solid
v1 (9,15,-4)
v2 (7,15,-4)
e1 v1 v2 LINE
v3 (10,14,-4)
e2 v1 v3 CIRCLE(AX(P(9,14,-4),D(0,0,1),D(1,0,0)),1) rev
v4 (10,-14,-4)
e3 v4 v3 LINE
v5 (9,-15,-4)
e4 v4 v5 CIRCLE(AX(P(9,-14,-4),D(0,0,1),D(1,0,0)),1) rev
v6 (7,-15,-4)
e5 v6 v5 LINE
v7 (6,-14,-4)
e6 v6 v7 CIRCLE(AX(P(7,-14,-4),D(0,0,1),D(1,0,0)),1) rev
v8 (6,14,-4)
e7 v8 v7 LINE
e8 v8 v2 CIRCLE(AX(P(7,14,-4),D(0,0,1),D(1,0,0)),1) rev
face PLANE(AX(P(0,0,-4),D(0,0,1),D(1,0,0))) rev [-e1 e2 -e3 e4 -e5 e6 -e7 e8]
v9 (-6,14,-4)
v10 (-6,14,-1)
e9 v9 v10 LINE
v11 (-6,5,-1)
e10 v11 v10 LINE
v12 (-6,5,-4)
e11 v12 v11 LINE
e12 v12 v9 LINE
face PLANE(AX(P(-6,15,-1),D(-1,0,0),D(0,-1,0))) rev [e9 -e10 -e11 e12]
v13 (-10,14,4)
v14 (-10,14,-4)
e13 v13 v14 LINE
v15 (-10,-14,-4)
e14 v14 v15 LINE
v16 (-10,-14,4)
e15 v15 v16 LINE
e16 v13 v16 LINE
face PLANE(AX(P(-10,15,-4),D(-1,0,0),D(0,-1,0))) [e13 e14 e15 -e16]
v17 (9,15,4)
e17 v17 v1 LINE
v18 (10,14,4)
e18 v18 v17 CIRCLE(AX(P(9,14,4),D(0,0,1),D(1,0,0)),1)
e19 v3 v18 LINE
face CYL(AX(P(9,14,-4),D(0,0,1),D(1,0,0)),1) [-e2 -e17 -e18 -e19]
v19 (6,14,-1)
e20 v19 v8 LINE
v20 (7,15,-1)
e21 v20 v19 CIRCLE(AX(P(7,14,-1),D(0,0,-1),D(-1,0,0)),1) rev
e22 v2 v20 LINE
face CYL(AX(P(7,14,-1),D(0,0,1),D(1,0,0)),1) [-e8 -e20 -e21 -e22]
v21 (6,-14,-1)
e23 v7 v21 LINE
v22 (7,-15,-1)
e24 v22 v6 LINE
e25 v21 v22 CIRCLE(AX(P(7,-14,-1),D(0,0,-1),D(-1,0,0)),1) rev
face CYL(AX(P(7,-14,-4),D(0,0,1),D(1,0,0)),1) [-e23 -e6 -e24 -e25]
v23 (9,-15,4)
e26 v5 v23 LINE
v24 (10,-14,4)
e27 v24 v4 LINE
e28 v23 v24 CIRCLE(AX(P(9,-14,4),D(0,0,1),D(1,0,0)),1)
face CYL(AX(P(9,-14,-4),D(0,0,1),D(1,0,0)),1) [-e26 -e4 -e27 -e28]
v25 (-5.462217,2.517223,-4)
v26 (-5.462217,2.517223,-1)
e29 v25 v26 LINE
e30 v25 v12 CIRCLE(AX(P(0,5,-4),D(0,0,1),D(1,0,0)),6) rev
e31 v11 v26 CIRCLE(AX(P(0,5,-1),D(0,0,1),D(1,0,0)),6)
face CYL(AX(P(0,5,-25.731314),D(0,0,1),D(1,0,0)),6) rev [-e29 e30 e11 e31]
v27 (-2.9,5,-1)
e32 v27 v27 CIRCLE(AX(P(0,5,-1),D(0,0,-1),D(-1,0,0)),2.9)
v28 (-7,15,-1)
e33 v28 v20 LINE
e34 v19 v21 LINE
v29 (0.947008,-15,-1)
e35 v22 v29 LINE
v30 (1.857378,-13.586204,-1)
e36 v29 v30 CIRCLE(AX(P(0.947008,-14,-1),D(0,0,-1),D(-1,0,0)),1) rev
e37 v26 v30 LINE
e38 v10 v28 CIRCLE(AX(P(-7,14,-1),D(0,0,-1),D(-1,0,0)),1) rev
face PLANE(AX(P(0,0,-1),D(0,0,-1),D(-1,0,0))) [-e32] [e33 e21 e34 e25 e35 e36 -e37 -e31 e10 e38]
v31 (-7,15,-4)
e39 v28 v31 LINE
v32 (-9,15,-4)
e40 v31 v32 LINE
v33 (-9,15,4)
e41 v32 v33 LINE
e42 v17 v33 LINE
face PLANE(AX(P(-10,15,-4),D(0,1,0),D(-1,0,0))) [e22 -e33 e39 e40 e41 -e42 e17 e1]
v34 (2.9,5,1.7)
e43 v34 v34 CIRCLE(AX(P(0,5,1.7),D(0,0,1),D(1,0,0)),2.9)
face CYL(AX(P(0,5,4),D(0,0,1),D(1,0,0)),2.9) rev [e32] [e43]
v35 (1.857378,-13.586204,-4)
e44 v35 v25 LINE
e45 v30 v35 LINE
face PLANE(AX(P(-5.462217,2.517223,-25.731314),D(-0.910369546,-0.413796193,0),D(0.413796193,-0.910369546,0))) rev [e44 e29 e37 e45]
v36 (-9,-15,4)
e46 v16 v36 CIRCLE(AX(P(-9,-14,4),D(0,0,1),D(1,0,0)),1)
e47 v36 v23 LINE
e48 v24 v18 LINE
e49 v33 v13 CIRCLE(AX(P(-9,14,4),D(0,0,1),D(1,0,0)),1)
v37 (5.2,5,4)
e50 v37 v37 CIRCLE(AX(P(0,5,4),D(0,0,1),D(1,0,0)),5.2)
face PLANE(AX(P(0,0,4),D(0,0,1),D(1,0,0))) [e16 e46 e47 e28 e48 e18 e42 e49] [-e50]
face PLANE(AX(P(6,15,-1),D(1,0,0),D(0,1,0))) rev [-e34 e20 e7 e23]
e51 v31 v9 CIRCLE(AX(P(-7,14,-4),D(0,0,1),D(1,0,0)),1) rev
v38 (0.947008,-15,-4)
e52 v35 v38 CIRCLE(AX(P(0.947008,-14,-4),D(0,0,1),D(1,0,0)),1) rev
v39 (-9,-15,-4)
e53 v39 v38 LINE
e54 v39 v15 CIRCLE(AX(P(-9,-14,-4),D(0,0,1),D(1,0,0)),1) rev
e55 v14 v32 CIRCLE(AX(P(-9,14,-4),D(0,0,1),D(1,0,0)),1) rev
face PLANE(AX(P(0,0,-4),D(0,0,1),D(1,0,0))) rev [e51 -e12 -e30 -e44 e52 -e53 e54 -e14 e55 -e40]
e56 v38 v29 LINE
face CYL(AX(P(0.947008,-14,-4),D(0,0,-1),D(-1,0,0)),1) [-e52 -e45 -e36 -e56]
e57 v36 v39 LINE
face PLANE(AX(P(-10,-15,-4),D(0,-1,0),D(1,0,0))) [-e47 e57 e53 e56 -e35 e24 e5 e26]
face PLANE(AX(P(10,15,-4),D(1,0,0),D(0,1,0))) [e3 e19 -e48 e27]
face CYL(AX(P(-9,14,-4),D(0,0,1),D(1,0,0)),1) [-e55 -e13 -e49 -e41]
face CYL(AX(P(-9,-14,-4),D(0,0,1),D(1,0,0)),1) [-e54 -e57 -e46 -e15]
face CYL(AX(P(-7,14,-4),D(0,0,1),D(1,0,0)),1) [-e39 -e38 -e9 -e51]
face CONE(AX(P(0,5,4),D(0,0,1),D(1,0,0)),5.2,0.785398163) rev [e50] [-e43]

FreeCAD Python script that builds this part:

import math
import FreeCAD as App
import Part
import Sketcher
from FreeCAD import Vector


def edges_at(feature, points):
    """Names of the edges that pass closest to the given points."""
    edges = feature.Shape.Edges
    near = lambda p: min(range(len(edges)), key=lambda i: edges[i].distToShape(Part.Vertex(*p))[0])
    return sorted({f"Edge{near(p) + 1}" for p in points})

doc = App.newDocument("Part")
body = doc.addObject("PartDesign::Body", "Body")

# Sketch on XY plane
sketch1 = body.newObject("Sketcher::SketchObject", "Sketch")
sketch1.AttachmentSupport = (doc.getObject("XY_Plane"), [""])
sketch1.MapMode = "FlatFace"
sketch1.addGeometry(Part.LineSegment(Vector(-10, 15, 0), Vector(-10, -15, 0)), False)
sketch1.addGeometry(Part.LineSegment(Vector(-10, -15, 0), Vector(10, -15, 0)), False)
sketch1.addGeometry(Part.LineSegment(Vector(10, -15, 0), Vector(10, 15, 0)), False)
sketch1.addGeometry(Part.LineSegment(Vector(10, 15, 0), Vector(-10, 15, 0)), False)
sketch1.addConstraint(Sketcher.Constraint("Coincident", 0, 2, 1, 1))
sketch1.addConstraint(Sketcher.Constraint("Coincident", 1, 2, 2, 1))
sketch1.addConstraint(Sketcher.Constraint("Coincident", 2, 2, 3, 1))
sketch1.addConstraint(Sketcher.Constraint("Coincident", 3, 2, 0, 1))
sketch1.addConstraint(Sketcher.Constraint("Vertical", 0))
sketch1.addConstraint(Sketcher.Constraint("Horizontal", 1))
sketch1.addConstraint(Sketcher.Constraint("Vertical", 2))
sketch1.addConstraint(Sketcher.Constraint("Horizontal", 3))
sketch1.addConstraint(Sketcher.Constraint("Symmetric", 0, 2, 2, 2, -1, 1))
sketch1.addConstraint(Sketcher.Constraint("DistanceX", 1, 1, 1, 2, 20.0))
sketch1.addConstraint(Sketcher.Constraint("DistanceY", 0, 2, 0, 1, 30.0))
pad1 = body.newObject("PartDesign::Pad", "Pad")
pad1.Profile = sketch1
pad1.Length = 8
pad1.Midplane = True

# Sketch on XY plane
sketch2 = body.newObject("Sketcher::SketchObject", "Sketch001")
sketch2.AttachmentSupport = (doc.getObject("XY_Plane"), [""])
sketch2.MapMode = "FlatFace"
sketch2.AttachmentOffset = App.Placement(Vector(0, 0, -4), App.Rotation())
sketch2.addGeometry(Part.LineSegment(Vector(6, 15, 0), Vector(6, -15, 0)), False)
sketch2.addGeometry(Part.LineSegment(Vector(6, -15, 0), Vector(-6, -15, 0)), False)
sketch2.addGeometry(Part.LineSegment(Vector(-6, -15, 0), Vector(-6, 15, 0)), False)
sketch2.addGeometry(Part.LineSegment(Vector(-6, 15, 0), Vector(6, 15, 0)), False)
sketch2.addConstraint(Sketcher.Constraint("Coincident", 0, 2, 1, 1))
sketch2.addConstraint(Sketcher.Constraint("Coincident", 1, 2, 2, 1))
sketch2.addConstraint(Sketcher.Constraint("Coincident", 2, 2, 3, 1))
sketch2.addConstraint(Sketcher.Constraint("Coincident", 3, 2, 0, 1))
sketch2.addConstraint(Sketcher.Constraint("Vertical", 0))
sketch2.addConstraint(Sketcher.Constraint("Horizontal", 1))
sketch2.addConstraint(Sketcher.Constraint("Vertical", 2))
sketch2.addConstraint(Sketcher.Constraint("Horizontal", 3))
sketch2.addConstraint(Sketcher.Constraint("Symmetric", 0, 2, 2, 2, -1, 1))
sketch2.addConstraint(Sketcher.Constraint("DistanceX", 1, 2, 1, 1, 12.0))
sketch2.addConstraint(Sketcher.Constraint("DistanceY", 0, 2, 0, 1, 30.0))
pocket1 = body.newObject("PartDesign::Pocket", "Pocket")
pocket1.Profile = sketch2
pocket1.Length = 3
pocket1.Reversed = True

# Sketch on XY plane
sketch3 = body.newObject("Sketcher::SketchObject", "Sketch002")
sketch3.AttachmentSupport = (doc.getObject("XY_Plane"), [""])
sketch3.MapMode = "FlatFace"
sketch3.AttachmentOffset = App.Placement(Vector(0, 0, 4), App.Rotation())
sketch3.addGeometry(Part.Circle(Vector(0, 5, 0), Vector(0, 0, 1), 2.9), False)
sketch3.addConstraint(Sketcher.Constraint("PointOnObject", 0, 3, -2))
sketch3.addConstraint(Sketcher.Constraint("Diameter", 0, 5.8))
sketch3.addConstraint(Sketcher.Constraint("DistanceY", -1, 1, 0, 3, 5.0))
doc.recompute()
hole = body.newObject("PartDesign::Hole", "Hole")
hole.Profile = sketch3
hole.ThreadType = "None"
hole.Diameter = 5.8
hole.DepthType = "ThroughAll"
hole.HoleCutType = "Countersink"
hole.HoleCutDiameter = 10.4
hole.HoleCutCountersinkAngle = 90

# Sketch on XY plane
sketch4 = body.newObject("Sketcher::SketchObject", "Sketch003")
sketch4.AttachmentSupport = (doc.getObject("XY_Plane"), [""])
sketch4.MapMode = "FlatFace"
sketch4.AttachmentOffset = App.Placement(Vector(0, 0, -1), App.Rotation())
sketch4.addGeometry(Part.LineSegment(Vector(-5.5, 2.5, 0), Vector(2.5, -15, 0)), False)
sketch4.addGeometry(Part.LineSegment(Vector(2.5, -15, 0), Vector(-6, -15, 0)), False)
sketch4.addGeometry(Part.LineSegment(Vector(-6, -15, 0), Vector(-6, 5, 0)), False)
sketch4.addGeometry(Part.ArcOfCircle(Part.Circle(Vector(0, 5, 0), Vector(0, 0, 1), 6), math.radians(-180), math.radians(-156)), False)
sketch4.addConstraint(Sketcher.Constraint("Coincident", 0, 2, 1, 1))
sketch4.addConstraint(Sketcher.Constraint("Coincident", 1, 2, 2, 1))
sketch4.addConstraint(Sketcher.Constraint("Tangent", 2, 2, 3, 1))
sketch4.addConstraint(Sketcher.Constraint("Tangent", 3, 2, 0, 1))
sketch4.addConstraint(Sketcher.Constraint("Horizontal", 1))
sketch4.addConstraint(Sketcher.Constraint("Vertical", 2))
sketch4.addConstraint(Sketcher.Constraint("PointOnObject", 3, 3, -2))
sketch4.addConstraint(Sketcher.Constraint("Radius", 3, 6.0))
sketch4.addConstraint(Sketcher.Constraint("DistanceY", 2, 1, 2, 2, 20.0))
sketch4.addConstraint(Sketcher.Constraint("DistanceX", 1, 2, 1, 1, 8.5))
sketch4.addConstraint(Sketcher.Constraint("DistanceY", -1, 1, 3, 3, 5.0))
pad2 = body.newObject("PartDesign::Pad", "Pad001")
pad2.Profile = sketch4
pad2.Length = 3
pad2.Reversed = True
doc.recompute()

fillet = body.newObject("PartDesign::Fillet", "Fillet")
fillet.Base = (pad2, edges_at(pad2, [
    (6, -15, -2.5),
    (6, 15, -2.5),
    (-6, 15, -2.5),
    (2.5, -15, -2.5),
    (-10, 15, 0),
    (10, 15, 0),
    (10, -15, 0),
    (-10, -15, 0),
]))
fillet.Radius = 1

doc.recompute()
